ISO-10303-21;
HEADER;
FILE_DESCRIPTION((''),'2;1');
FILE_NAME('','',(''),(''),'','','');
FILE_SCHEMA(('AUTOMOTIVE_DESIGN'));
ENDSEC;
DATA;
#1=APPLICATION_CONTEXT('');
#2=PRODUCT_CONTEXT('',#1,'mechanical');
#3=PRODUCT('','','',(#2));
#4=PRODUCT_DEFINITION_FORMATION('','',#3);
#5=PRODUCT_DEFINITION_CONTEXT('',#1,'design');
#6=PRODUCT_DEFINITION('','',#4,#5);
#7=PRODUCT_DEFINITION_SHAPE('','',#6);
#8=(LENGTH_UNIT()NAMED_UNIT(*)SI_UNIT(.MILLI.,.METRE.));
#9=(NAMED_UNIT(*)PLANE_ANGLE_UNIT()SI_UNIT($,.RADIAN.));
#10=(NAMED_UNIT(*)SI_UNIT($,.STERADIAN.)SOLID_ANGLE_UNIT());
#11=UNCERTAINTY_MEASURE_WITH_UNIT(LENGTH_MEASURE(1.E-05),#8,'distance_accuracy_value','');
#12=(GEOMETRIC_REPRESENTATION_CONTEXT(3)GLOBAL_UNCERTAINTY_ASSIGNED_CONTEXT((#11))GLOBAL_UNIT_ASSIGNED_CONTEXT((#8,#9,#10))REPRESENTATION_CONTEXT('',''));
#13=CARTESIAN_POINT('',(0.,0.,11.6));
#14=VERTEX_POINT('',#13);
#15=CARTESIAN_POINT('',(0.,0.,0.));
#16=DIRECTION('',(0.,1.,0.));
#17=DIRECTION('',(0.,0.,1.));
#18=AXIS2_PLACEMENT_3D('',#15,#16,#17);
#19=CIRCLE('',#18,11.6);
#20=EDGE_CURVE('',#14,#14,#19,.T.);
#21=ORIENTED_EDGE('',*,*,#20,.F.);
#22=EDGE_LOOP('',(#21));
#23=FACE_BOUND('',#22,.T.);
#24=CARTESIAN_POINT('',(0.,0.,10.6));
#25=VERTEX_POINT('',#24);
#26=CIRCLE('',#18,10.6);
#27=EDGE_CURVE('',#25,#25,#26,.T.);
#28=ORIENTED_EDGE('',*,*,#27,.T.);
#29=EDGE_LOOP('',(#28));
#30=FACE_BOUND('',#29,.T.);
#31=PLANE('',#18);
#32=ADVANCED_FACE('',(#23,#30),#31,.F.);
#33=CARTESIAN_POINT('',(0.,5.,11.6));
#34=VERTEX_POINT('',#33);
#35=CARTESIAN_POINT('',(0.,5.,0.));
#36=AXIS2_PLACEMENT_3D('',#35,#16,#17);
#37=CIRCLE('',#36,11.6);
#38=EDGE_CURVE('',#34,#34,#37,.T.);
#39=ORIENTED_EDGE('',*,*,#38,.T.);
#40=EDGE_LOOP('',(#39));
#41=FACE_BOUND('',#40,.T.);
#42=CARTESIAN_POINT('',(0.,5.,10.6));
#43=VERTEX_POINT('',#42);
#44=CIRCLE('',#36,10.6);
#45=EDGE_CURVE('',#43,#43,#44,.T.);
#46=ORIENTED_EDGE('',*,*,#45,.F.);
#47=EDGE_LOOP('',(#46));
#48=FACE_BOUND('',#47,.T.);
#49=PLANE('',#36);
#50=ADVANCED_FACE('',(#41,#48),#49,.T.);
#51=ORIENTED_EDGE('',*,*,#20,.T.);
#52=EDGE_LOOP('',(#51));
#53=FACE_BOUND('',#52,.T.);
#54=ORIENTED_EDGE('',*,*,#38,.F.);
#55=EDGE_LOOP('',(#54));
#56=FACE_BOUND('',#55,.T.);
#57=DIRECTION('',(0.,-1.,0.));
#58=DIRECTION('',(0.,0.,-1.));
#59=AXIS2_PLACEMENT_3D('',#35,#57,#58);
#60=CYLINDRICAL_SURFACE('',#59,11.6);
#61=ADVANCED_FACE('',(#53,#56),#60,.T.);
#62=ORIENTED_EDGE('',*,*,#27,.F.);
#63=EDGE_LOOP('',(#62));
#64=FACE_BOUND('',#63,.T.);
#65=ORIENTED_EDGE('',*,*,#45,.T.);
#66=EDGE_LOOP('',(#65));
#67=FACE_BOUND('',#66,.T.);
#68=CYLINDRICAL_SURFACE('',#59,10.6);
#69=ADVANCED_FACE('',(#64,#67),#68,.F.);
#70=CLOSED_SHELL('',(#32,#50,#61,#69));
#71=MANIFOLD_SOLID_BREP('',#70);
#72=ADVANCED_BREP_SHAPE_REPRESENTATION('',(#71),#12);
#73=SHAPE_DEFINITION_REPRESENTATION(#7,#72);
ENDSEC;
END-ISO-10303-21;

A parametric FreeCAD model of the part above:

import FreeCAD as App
import Part
import Sketcher

V = App.Vector

doc = App.newDocument("Part")
body = doc.addObject("PartDesign::Body", "Body")

sketch1 = body.newObject("Sketcher::SketchObject", "Sketch")
sketch1.AttachmentSupport = (doc.getObject("XZ_Plane"), [""])
sketch1.MapMode = "FlatFace"
sketch1.addGeometry([
    Part.Circle(V(0, 0, 0), V(0, 0, 1), 11.6),
    Part.Circle(V(0, 0, 0), V(0, 0, 1), 10.6),
], False)
sketch1.addConstraint([
    Sketcher.Constraint("Coincident", 0, 3, -1, 1),
    Sketcher.Constraint("Coincident", 1, 3, -1, 1),
    Sketcher.Constraint("Diameter", 0, 23.2),
    Sketcher.Constraint("Diameter", 1, 21.2),
])
pad1 = body.newObject("PartDesign::Pad", "Pad")
pad1.Profile = sketch1
pad1.Length = 5
pad1.Reversed = True

doc.recompute()
